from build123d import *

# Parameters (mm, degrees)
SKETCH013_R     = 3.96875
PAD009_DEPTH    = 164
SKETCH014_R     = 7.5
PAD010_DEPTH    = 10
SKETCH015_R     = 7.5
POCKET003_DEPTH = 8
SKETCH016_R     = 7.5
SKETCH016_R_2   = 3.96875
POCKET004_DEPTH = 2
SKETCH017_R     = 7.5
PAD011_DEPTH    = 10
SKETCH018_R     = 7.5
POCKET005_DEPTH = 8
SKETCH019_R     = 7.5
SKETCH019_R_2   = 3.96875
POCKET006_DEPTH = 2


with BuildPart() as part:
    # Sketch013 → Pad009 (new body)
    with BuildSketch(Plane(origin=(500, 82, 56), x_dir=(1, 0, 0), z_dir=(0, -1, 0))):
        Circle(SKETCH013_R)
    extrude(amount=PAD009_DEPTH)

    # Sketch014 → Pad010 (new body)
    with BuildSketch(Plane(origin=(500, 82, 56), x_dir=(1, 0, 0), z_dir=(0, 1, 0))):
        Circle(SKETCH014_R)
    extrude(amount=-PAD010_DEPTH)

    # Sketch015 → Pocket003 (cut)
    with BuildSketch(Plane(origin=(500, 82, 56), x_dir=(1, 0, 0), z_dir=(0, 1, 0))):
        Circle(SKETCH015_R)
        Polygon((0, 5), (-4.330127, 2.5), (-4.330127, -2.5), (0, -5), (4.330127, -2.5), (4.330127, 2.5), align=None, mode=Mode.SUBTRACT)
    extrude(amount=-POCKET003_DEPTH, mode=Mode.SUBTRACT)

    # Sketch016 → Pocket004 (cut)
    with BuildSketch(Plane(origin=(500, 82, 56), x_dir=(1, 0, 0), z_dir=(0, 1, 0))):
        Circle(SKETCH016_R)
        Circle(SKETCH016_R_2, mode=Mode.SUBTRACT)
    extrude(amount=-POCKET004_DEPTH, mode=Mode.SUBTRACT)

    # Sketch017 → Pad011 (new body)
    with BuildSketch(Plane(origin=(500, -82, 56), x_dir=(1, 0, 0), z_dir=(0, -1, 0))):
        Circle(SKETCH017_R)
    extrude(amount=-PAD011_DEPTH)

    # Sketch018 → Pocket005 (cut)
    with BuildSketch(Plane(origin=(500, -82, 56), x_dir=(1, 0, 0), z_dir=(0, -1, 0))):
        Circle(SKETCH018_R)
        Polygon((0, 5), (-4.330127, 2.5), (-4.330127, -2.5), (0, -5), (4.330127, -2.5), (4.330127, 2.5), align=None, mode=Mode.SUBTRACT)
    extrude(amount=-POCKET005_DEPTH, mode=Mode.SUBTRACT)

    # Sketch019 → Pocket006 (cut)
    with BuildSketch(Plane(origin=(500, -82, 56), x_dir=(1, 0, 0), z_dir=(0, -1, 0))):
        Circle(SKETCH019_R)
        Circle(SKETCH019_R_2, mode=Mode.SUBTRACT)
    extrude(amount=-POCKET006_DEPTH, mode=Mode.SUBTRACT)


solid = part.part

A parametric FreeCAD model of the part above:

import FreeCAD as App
import Part
import Sketcher

V = App.Vector
Q = App.Units.Quantity

doc = App.newDocument("Part")
params = doc.addObject("Spreadsheet::Sheet", "Params")
for row, (alias, value) in enumerate([
    ("pad1_length", "164 mm"),
    ("sketch2_diameter", "15 mm"),
    ("pad2_length", "10 mm"),
    ("sketch3_diameter", "15 mm"),
    ("sketch3_height", "5 mm"),
    ("sketch3_length", "5 mm"),
    ("pocket1_length", "8 mm"),
    ("sketch4_diameter", "15 mm"),
    ("pocket2_length", "2 mm"),
    ("sketch5_diameter", "15 mm"),
    ("pad3_length", "10 mm"),
    ("sketch6_diameter", "15 mm"),
    ("sketch6_height", "5 mm"),
    ("sketch6_length", "5 mm"),
    ("pocket3_length", "8 mm"),
    ("sketch7_diameter", "15 mm"),
    ("pocket4_length", "2 mm"),
], start=1):
    params.set(f"A{row}", alias)
    params.set(f"B{row}", "=" + value)
    params.setAlias(f"B{row}", alias)

body = doc.addObject("PartDesign::Body", "Body")

# Sketch on XZ plane
sketch1 = body.newObject("Sketcher::SketchObject", "Sketch")
sketch1.AttachmentSupport = (doc.getObject("XZ_Plane"), [""])
sketch1.MapMode = "FlatFace"
sketch1.AttachmentOffset = App.Placement(V(0, 0, -82), App.Rotation())
sketch1.addGeometry(Part.Circle(V(500, 56, 0), V(0, 0, 1), 4), False)
sketch1.addConstraint([
    Sketcher.Constraint("DistanceX", -1, 1, 0, 3, 500.0),
    Sketcher.Constraint("DistanceY", -1, 1, 0, 3, 56.0),
    Sketcher.Constraint("Diameter", 0, 7.9375),
])
pad1 = body.newObject("PartDesign::Pad", "Pad")
pad1.Profile = sketch1
pad1.setExpression("Length", "Params.pad1_length")

# Sketch on XZ plane
sketch2 = body.newObject("Sketcher::SketchObject", "Sketch001")
sketch2.AttachmentSupport = (doc.getObject("XZ_Plane"), [""])
sketch2.MapMode = "FlatFace"
sketch2.AttachmentOffset = App.Placement(V(0, 0, -82), App.Rotation())
sketch2.addGeometry(Part.Circle(V(500, 56, 0), V(0, 0, 1), 8), False)
sketch2.addConstraint([
    Sketcher.Constraint("Diameter", 0, 15.0),
    Sketcher.Constraint("DistanceX", -1, 1, 0, 3, 500.0),
    Sketcher.Constraint("DistanceY", -1, 1, 0, 3, 56.0),
])
sketch2.setExpression("Constraints[0]", "Params.sketch2_diameter")
pad2 = body.newObject("PartDesign::Pad", "Pad001")
pad2.Profile = sketch2
pad2.setExpression("Length", "Params.pad2_length")

# Sketch on XZ plane
sketch3 = body.newObject("Sketcher::SketchObject", "Sketch002")
sketch3.AttachmentSupport = (doc.getObject("XZ_Plane"), [""])
sketch3.MapMode = "FlatFace"
sketch3.AttachmentOffset = App.Placement(V(0, 0, -82), App.Rotation())
sketch3.addGeometry([
    Part.Circle(V(500, 56, 0), V(0, 0, 1), 7.5),  # 0
    Part.LineSegment(V(495.7, 53.5, 0), V(500, 51, 0)),  # 1
    Part.LineSegment(V(500, 51, 0), V(504.3, 53.5, 0)),  # 2
    Part.LineSegment(V(504.3, 53.5, 0), V(504.3, 58.5, 0)),  # 3
    Part.LineSegment(V(504.3, 58.5, 0), V(500, 61, 0)),  # 4
    Part.LineSegment(V(500, 61, 0), V(495.7, 58.5, 0)),  # 5
    Part.LineSegment(V(495.7, 58.5, 0), V(495.7, 53.5, 0)),  # 6
], False)
sketch3.addConstraint([
    Sketcher.Constraint("Coincident", 1, 2, 2, 1),
    Sketcher.Constraint("Coincident", 2, 2, 3, 1),
    Sketcher.Constraint("Coincident", 3, 2, 4, 1),
    Sketcher.Constraint("Coincident", 4, 2, 5, 1),
    Sketcher.Constraint("Coincident", 5, 2, 6, 1),
    Sketcher.Constraint("Coincident", 6, 2, 1, 1),
    Sketcher.Constraint("Vertical", 3),
    Sketcher.Constraint("Vertical", 6),
    Sketcher.Constraint("Parallel", 1, 4),
    Sketcher.Constraint("Parallel", 2, 5),
    Sketcher.Constraint("Horizontal", 3, 2, 5, 2),
    Sketcher.Constraint("Horizontal", 2, 2, 6, 2),
    Sketcher.Constraint("Vertical", 0, 3, 1, 2),
    Sketcher.Constraint("Vertical", 1, 2, 4, 2),
    Sketcher.Constraint("Diameter", 0, 15.0),
    Sketcher.Constraint("DistanceY", 3, 1, 3, 2, 5.0),
    Sketcher.Constraint("Angle", 1, Q("-30 deg")),
    Sketcher.Constraint("Distance", 1, 5.0),
    Sketcher.Constraint("DistanceX", -1, 1, 0, 3, 500.0),
    Sketcher.Constraint("DistanceY", -1, 1, 0, 3, 56.0),
    Sketcher.Constraint("DistanceY", -1, 1, 1, 2, 51.0),
])
sketch3.setExpression("Constraints[14]", "Params.sketch3_diameter")
sketch3.setExpression("Constraints[15]", "Params.sketch3_height")
sketch3.setExpression("Constraints[17]", "Params.sketch3_length")
pocket1 = body.newObject("PartDesign::Pocket", "Pocket")
pocket1.Profile = sketch3
pocket1.setExpression("Length", "Params.pocket1_length")
pocket1.Reversed = True

# Sketch on XZ plane
sketch4 = body.newObject("Sketcher::SketchObject", "Sketch003")
sketch4.AttachmentSupport = (doc.getObject("XZ_Plane"), [""])
sketch4.MapMode = "FlatFace"
sketch4.AttachmentOffset = App.Placement(V(0, 0, -82), App.Rotation())
sketch4.addGeometry([
    Part.Circle(V(500, 56, 0), V(0, 0, 1), 7.5),
    Part.Circle(V(500, 56, 0), V(0, 0, 1), 4),
], False)
sketch4.addConstraint([
    Sketcher.Constraint("Coincident", 1, 3, 0, 3),
    Sketcher.Constraint("Diameter", 0, 15.0),
    Sketcher.Constraint("DistanceX", -1, 1, 0, 3, 500.0),
    Sketcher.Constraint("DistanceY", -1, 1, 0, 3, 56.0),
    Sketcher.Constraint("Diameter", 1, 7.9375),
])
sketch4.setExpression("Constraints[1]", "Params.sketch4_diameter")
pocket2 = body.newObject("PartDesign::Pocket", "Pocket001")
pocket2.Profile = sketch4
pocket2.setExpression("Length", "Params.pocket2_length")
pocket2.Reversed = True

# Sketch on XZ plane
sketch5 = body.newObject("Sketcher::SketchObject", "Sketch004")
sketch5.AttachmentSupport = (doc.getObject("XZ_Plane"), [""])
sketch5.MapMode = "FlatFace"
sketch5.AttachmentOffset = App.Placement(V(0, 0, 82), App.Rotation())
sketch5.addGeometry(Part.Circle(V(500, 56, 0), V(0, 0, 1), 8), False)
sketch5.addConstraint([
    Sketcher.Constraint("Diameter", 0, 15.0),
    Sketcher.Constraint("DistanceX", -1, 1, 0, 3, 500.0),
    Sketcher.Constraint("DistanceY", -1, 1, 0, 3, 56.0),
])
sketch5.setExpression("Constraints[0]", "Params.sketch5_diameter")
pad3 = body.newObject("PartDesign::Pad", "Pad002")
pad3.Profile = sketch5
pad3.setExpression("Length", "Params.pad3_length")
pad3.Reversed = True

# Sketch on XZ plane
sketch6 = body.newObject("Sketcher::SketchObject", "Sketch005")
sketch6.AttachmentSupport = (doc.getObject("XZ_Plane"), [""])
sketch6.MapMode = "FlatFace"
sketch6.AttachmentOffset = App.Placement(V(0, 0, 82), App.Rotation())
sketch6.addGeometry([
    Part.Circle(V(500, 56, 0), V(0, 0, 1), 7.5),  # 0
    Part.LineSegment(V(495.7, 58.5, 0), V(500, 61, 0)),  # 1
    Part.LineSegment(V(500, 61, 0), V(504.3, 58.5, 0)),  # 2
    Part.LineSegment(V(504.3, 58.5, 0), V(504.3, 53.5, 0)),  # 3
    Part.LineSegment(V(504.3, 53.5, 0), V(500, 51, 0)),  # 4
    Part.LineSegment(V(500, 51, 0), V(495.7, 53.5, 0)),  # 5
    Part.LineSegment(V(495.7, 53.5, 0), V(495.7, 58.5, 0)),  # 6
], False)
sketch6.addConstraint([
    Sketcher.Constraint("Coincident", 1, 2, 2, 1),
    Sketcher.Constraint("Coincident", 2, 2, 3, 1),
    Sketcher.Constraint("Coincident", 3, 2, 4, 1),
    Sketcher.Constraint("Coincident", 4, 2, 5, 1),
    Sketcher.Constraint("Coincident", 5, 2, 6, 1),
    Sketcher.Constraint("Coincident", 6, 2, 1, 1),
    Sketcher.Constraint("Vertical", 3),
    Sketcher.Constraint("Vertical", 6),
    Sketcher.Constraint("Parallel", 1, 4),
    Sketcher.Constraint("Parallel", 2, 5),
    Sketcher.Constraint("Horizontal", 3, 2, 5, 2),
    Sketcher.Constraint("Horizontal", 2, 2, 6, 2),
    Sketcher.Constraint("Vertical", 0, 3, 1, 2),
    Sketcher.Constraint("Vertical", 1, 2, 4, 2),
    Sketcher.Constraint("Diameter", 0, 15.0),
    Sketcher.Constraint("DistanceY", 3, 2, 3, 1, 5.0),
    Sketcher.Constraint("Angle", 1, Q("30 deg")),
    Sketcher.Constraint("Distance", 1, 5.0),
    Sketcher.Constraint("DistanceX", -1, 1, 0, 3, 500.0),
    Sketcher.Constraint("DistanceY", -1, 1, 0, 3, 56.0),
    Sketcher.Constraint("DistanceY", -1, 1, 1, 2, 61.0),
])
sketch6.setExpression("Constraints[14]", "Params.sketch6_diameter")
sketch6.setExpression("Constraints[15]", "Params.sketch6_height")
sketch6.setExpression("Constraints[17]", "Params.sketch6_length")
pocket3 = body.newObject("PartDesign::Pocket", "Pocket002")
pocket3.Profile = sketch6
pocket3.setExpression("Length", "Params.pocket3_length")

# Sketch on XZ plane
sketch7 = body.newObject("Sketcher::SketchObject", "Sketch006")
sketch7.AttachmentSupport = (doc.getObject("XZ_Plane"), [""])
sketch7.MapMode = "FlatFace"
sketch7.AttachmentOffset = App.Placement(V(0, 0, 82), App.Rotation())
sketch7.addGeometry([
    Part.Circle(V(500, 56, 0), V(0, 0, 1), 7.5),
    Part.Circle(V(500, 56, 0), V(0, 0, 1), 4),
], False)
sketch7.addConstraint([
    Sketcher.Constraint("Coincident", 1, 3, 0, 3),
    Sketcher.Constraint("Diameter", 0, 15.0),
    Sketcher.Constraint("DistanceX", -1, 1, 0, 3, 500.0),
    Sketcher.Constraint("DistanceY", -1, 1, 0, 3, 56.0),
    Sketcher.Constraint("Diameter", 1, 7.9375),
])
sketch7.setExpression("Constraints[1]", "Params.sketch7_diameter")
pocket4 = body.newObject("PartDesign::Pocket", "Pocket003")
pocket4.Profile = sketch7
pocket4.setExpression("Length", "Params.pocket4_length")

doc.recompute()
